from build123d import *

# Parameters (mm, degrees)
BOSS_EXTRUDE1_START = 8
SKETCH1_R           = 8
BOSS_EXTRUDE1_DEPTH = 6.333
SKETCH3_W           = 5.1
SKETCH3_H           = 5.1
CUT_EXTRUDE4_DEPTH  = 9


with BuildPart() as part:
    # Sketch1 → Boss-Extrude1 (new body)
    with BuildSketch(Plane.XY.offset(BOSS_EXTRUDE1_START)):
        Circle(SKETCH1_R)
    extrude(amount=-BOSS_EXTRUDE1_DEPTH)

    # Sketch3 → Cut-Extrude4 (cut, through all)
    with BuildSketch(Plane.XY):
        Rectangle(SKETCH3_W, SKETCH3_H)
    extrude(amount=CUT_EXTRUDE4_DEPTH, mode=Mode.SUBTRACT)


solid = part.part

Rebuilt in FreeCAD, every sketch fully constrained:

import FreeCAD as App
import Part
import Sketcher
from FreeCAD import Vector
Q = App.Units.Quantity


def add_polygon(sketch, points):
    """Adds a closed chain of lines whose ends are joined by coincident constraints."""
    first, n = sketch.GeometryCount, len(points)
    for a, b in zip(points, points[1:] + points[:1]):
        sketch.addGeometry(Part.LineSegment(App.Vector(*a, 0), App.Vector(*b, 0)), False)
    for i in range(n):
        sketch.addConstraint(Sketcher.Constraint("Coincident", first + i, 2, first + (i + 1) % n, 1))

doc = App.newDocument("Part")
body = doc.addObject("PartDesign::Body", "Body")

sketch1 = body.newObject("Sketcher::SketchObject", "Sketch")
sketch1.AttachmentSupport = (doc.getObject("XY_Plane"), [""])
sketch1.MapMode = "FlatFace"
sketch1.AttachmentOffset = App.Placement(Vector(0, 0, 8), App.Rotation())
sketch1.addGeometry(Part.Circle(Vector(0, 0, 0), Vector(0, 0, 1), 8), False)
sketch1.addConstraint([
    Sketcher.Constraint("Coincident", 0, 3, -1, 1),
    Sketcher.Constraint("Diameter", 0, Q("16 mm")),
])
pad1 = body.newObject("PartDesign::Pad", "Pad")
pad1.Profile = sketch1
pad1.Length = 6.333
pad1.Reversed = True

sketch2 = body.newObject("Sketcher::SketchObject", "Sketch001")
sketch2.AttachmentSupport = (doc.getObject("XY_Plane"), [""])
sketch2.MapMode = "FlatFace"
add_polygon(sketch2, [(-2.55, 2.55), (-2.55, -2.55), (2.55, -2.55), (2.55, 2.55)])
sketch2.addConstraint([
    Sketcher.Constraint("Vertical", 0),
    Sketcher.Constraint("Horizontal", 1),
    Sketcher.Constraint("Vertical", 2),
    Sketcher.Constraint("Horizontal", 3),
    Sketcher.Constraint("Symmetric", 0, 2, 2, 2, -1, 1),
    Sketcher.Constraint("Equal", 3, 0),
    Sketcher.Constraint("DistanceX", 1, 1, 1, 2, Q("5.1 mm")),
])
pocket1 = body.newObject("PartDesign::Pocket", "Pocket")
pocket1.Profile = sketch2
pocket1.Type = "ThroughAll"
pocket1.Reversed = True

doc.recompute()
